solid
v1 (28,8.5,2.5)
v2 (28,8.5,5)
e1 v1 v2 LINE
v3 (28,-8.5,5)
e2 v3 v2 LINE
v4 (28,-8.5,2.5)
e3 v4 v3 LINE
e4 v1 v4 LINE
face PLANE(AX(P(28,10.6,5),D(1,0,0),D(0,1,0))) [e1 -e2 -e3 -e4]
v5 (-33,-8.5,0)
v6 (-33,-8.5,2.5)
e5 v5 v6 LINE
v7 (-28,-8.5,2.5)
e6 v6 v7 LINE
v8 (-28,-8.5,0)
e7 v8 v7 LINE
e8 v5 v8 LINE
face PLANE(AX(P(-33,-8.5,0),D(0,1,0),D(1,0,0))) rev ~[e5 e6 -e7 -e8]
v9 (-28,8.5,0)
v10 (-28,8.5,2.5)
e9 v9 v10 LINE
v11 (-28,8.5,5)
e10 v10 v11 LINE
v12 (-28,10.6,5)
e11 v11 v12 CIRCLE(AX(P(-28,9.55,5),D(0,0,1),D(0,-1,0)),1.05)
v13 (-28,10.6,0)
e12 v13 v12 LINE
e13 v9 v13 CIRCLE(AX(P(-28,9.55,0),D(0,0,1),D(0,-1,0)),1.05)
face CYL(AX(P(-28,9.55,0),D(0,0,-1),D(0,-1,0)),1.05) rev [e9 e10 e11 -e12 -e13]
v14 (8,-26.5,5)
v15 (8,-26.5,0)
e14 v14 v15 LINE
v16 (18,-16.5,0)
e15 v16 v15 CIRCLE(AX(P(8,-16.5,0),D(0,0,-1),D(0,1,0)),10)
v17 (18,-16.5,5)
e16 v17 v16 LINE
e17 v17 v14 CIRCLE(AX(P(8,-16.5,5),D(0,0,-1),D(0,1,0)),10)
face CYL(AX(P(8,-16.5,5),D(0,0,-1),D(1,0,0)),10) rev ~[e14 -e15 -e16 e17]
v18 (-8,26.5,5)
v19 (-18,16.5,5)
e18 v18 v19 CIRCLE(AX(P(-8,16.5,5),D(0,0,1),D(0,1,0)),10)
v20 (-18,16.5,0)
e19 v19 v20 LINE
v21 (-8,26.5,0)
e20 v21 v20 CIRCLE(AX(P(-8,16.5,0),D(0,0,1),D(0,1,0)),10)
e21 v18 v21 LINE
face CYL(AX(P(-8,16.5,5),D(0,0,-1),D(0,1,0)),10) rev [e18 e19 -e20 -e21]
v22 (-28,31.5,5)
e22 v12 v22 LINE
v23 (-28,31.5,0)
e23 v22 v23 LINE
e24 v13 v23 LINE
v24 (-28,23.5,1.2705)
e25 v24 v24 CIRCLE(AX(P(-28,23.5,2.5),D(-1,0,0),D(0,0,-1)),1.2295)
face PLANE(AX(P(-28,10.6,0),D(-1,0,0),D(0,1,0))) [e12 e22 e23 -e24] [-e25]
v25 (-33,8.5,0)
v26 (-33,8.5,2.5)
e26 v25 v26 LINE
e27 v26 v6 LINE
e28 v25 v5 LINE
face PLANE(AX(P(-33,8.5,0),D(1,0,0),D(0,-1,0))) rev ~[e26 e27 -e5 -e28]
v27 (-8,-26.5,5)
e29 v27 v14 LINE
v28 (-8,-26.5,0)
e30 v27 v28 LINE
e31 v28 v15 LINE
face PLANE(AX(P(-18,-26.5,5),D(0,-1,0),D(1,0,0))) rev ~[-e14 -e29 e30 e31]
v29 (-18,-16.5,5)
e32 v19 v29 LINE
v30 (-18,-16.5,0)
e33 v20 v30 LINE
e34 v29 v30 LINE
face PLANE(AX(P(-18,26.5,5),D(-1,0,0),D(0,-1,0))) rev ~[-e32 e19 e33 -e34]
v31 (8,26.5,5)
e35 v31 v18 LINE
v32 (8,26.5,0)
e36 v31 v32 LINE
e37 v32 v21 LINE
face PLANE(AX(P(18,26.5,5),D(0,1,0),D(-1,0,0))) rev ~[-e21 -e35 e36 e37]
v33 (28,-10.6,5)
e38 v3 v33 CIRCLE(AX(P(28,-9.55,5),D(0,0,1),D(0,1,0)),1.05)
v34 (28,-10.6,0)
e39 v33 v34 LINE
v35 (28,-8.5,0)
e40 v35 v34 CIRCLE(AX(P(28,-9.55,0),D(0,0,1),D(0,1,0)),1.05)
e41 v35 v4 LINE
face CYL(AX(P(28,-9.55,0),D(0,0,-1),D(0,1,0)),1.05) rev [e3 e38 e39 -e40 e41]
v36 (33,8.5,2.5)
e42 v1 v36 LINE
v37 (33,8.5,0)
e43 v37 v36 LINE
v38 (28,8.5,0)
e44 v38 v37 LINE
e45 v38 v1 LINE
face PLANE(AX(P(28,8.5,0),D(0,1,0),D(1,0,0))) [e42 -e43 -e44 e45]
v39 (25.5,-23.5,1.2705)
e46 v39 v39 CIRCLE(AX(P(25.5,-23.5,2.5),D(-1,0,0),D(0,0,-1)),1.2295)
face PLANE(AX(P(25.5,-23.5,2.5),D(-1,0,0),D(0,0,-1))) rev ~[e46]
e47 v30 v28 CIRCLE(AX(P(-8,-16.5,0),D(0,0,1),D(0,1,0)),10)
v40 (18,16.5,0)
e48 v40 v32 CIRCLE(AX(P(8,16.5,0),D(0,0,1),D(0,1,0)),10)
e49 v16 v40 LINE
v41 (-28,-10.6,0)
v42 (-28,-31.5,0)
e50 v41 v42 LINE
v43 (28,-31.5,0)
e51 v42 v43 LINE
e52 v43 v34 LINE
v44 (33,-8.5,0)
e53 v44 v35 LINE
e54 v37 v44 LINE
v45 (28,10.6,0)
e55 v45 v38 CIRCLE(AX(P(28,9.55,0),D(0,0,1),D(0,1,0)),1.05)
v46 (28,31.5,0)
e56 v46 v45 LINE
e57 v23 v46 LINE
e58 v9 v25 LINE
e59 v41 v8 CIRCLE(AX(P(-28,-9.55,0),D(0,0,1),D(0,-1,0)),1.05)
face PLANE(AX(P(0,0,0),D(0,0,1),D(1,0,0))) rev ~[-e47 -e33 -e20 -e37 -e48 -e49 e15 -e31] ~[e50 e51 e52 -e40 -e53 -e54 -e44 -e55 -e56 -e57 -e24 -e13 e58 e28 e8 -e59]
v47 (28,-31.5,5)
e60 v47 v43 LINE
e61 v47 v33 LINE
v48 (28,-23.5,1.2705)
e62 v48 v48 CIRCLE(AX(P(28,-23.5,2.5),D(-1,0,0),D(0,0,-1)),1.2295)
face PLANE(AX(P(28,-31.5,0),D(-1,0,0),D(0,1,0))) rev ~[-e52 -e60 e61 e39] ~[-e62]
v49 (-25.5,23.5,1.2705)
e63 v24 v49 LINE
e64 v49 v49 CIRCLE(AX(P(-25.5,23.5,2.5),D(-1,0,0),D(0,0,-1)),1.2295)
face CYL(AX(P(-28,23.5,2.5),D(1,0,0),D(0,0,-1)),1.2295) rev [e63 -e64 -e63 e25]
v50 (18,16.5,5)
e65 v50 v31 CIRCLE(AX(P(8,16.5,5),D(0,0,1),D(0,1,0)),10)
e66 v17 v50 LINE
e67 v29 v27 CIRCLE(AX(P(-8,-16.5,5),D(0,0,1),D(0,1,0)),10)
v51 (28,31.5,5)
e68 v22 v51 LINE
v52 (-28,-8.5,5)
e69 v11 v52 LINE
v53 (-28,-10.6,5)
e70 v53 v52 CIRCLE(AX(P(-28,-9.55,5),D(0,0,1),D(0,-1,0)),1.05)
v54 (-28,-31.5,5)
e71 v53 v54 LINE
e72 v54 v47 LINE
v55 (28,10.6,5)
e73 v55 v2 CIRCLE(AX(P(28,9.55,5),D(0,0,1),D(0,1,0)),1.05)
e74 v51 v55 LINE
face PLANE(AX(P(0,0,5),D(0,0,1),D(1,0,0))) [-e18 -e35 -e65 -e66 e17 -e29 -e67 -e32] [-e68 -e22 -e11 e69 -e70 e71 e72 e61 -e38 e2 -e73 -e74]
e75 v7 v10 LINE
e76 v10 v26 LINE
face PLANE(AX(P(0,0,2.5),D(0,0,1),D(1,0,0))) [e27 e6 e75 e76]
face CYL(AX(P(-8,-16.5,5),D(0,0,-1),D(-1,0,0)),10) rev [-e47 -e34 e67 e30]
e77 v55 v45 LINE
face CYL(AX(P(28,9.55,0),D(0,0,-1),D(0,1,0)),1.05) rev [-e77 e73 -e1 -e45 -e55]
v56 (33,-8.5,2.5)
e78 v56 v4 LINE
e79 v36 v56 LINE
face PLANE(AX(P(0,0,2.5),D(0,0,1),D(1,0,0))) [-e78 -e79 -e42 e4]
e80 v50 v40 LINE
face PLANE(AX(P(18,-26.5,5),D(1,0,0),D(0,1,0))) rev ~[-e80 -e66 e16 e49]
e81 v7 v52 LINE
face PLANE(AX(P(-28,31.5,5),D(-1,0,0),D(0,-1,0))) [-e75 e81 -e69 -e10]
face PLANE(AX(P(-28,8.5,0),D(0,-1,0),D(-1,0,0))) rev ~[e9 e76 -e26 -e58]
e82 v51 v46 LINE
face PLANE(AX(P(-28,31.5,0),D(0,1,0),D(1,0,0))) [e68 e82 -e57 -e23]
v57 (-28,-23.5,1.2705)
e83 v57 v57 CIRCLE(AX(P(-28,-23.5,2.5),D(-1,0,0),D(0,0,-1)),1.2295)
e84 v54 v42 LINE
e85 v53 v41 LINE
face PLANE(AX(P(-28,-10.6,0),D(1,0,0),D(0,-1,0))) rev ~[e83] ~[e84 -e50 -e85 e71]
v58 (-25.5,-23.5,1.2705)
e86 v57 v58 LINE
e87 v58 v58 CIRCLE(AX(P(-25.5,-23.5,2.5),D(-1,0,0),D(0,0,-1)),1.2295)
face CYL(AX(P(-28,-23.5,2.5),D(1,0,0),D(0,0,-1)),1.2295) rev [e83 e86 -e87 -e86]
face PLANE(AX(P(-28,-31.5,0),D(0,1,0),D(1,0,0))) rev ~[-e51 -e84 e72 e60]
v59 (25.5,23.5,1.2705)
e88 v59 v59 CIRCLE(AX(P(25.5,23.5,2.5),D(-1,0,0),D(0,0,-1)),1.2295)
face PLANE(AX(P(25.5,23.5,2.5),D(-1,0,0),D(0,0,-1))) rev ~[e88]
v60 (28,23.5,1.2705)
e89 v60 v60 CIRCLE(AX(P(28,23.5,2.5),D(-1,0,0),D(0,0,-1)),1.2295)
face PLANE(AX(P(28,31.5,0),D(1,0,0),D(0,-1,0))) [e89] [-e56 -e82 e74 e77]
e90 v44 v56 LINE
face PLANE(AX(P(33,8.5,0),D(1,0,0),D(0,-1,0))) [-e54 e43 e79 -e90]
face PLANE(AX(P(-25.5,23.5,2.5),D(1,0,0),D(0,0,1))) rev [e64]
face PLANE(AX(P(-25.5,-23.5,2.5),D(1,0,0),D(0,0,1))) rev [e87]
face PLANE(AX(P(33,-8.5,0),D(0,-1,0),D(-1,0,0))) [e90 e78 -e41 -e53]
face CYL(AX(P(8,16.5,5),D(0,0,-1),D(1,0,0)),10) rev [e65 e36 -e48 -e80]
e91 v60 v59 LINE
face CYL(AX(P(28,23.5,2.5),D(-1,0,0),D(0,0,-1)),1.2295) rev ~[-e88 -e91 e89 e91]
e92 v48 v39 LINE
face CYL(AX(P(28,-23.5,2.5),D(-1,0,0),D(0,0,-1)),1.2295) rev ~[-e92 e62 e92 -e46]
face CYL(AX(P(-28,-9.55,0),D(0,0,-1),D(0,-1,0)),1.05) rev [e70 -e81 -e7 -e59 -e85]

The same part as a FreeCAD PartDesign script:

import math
import FreeCAD as App
import Part
import Sketcher
from FreeCAD import Vector


def edges_at(feature, points):
    """Names of the edges that pass closest to the given points."""
    edges = feature.Shape.Edges
    near = lambda p: min(range(len(edges)), key=lambda i: edges[i].distToShape(Part.Vertex(*p))[0])
    return sorted({f"Edge{near(p) + 1}" for p in points})

doc = App.newDocument("Part")
body = doc.addObject("PartDesign::Body", "Body")

# Sketch on XY plane
sketch1 = body.newObject("Sketcher::SketchObject", "Sketch")
sketch1.AttachmentSupport = (doc.getObject("XY_Plane"), [""])
sketch1.MapMode = "FlatFace"
sketch1.addGeometry(Part.LineSegment(Vector(-28, 31.5, 0), Vector(-28, 10.6, 0)), False)
sketch1.addGeometry(Part.ArcOfCircle(Part.Circle(Vector(-28, 9.55, 0), Vector(0, 0, 1), 1.05), math.radians(-90), math.radians(90)), False)
sketch1.addGeometry(Part.LineSegment(Vector(-28, 8.5, 0), Vector(-33, 8.5, 0)), False)
sketch1.addGeometry(Part.LineSegment(Vector(-33, 8.5, 0), Vector(-33, -8.5, 0)), False)
sketch1.addGeometry(Part.LineSegment(Vector(-33, -8.5, 0), Vector(-28, -8.5, 0)), False)
sketch1.addGeometry(Part.ArcOfCircle(Part.Circle(Vector(-28, -9.55, 0), Vector(0, 0, 1), 1.05), math.radians(-90), math.radians(90)), False)
sketch1.addGeometry(Part.LineSegment(Vector(-28, -10.6, 0), Vector(-28, -31.5, 0)), False)
sketch1.addGeometry(Part.LineSegment(Vector(-28, -31.5, 0), Vector(28, -31.5, 0)), False)
sketch1.addGeometry(Part.LineSegment(Vector(28, -31.5, 0), Vector(28, -10.6, 0)), False)
sketch1.addGeometry(Part.ArcOfCircle(Part.Circle(Vector(28, -9.55, 0), Vector(0, 0, 1), 1.05), math.radians(90), math.radians(270)), False)
sketch1.addGeometry(Part.LineSegment(Vector(28, -8.5, 0), Vector(33, -8.5, 0)), False)
sketch1.addGeometry(Part.LineSegment(Vector(33, -8.5, 0), Vector(33, 8.5, 0)), False)
sketch1.addGeometry(Part.LineSegment(Vector(33, 8.5, 0), Vector(28, 8.5, 0)), False)
sketch1.addGeometry(Part.ArcOfCircle(Part.Circle(Vector(28, 9.55, 0), Vector(0, 0, 1), 1.05), math.radians(90), math.radians(270)), False)
sketch1.addGeometry(Part.LineSegment(Vector(28, 10.6, 0), Vector(28, 31.5, 0)), False)
sketch1.addGeometry(Part.LineSegment(Vector(28, 31.5, 0), Vector(-28, 31.5, 0)), False)
sketch1.addConstraint(Sketcher.Constraint("Coincident", 0, 2, 1, 2))
sketch1.addConstraint(Sketcher.Constraint("Tangent", 1, 1, 2, 1))
sketch1.addConstraint(Sketcher.Constraint("Coincident", 2, 2, 3, 1))
sketch1.addConstraint(Sketcher.Constraint("Coincident", 3, 2, 4, 1))
sketch1.addConstraint(Sketcher.Constraint("Tangent", 4, 2, 5, 2))
sketch1.addConstraint(Sketcher.Constraint("Coincident", 5, 1, 6, 1))
sketch1.addConstraint(Sketcher.Constraint("Coincident", 6, 2, 7, 1))
sketch1.addConstraint(Sketcher.Constraint("Coincident", 7, 2, 8, 1))
sketch1.addConstraint(Sketcher.Constraint("Coincident", 8, 2, 9, 2))
sketch1.addConstraint(Sketcher.Constraint("Tangent", 9, 1, 10, 1))
sketch1.addConstraint(Sketcher.Constraint("Coincident", 10, 2, 11, 1))
sketch1.addConstraint(Sketcher.Constraint("Coincident", 11, 2, 12, 1))
sketch1.addConstraint(Sketcher.Constraint("Tangent", 12, 2, 13, 2))
sketch1.addConstraint(Sketcher.Constraint("Coincident", 13, 1, 14, 1))
sketch1.addConstraint(Sketcher.Constraint("Coincident", 14, 2, 15, 1))
sketch1.addConstraint(Sketcher.Constraint("Coincident", 15, 2, 0, 1))
sketch1.addConstraint(Sketcher.Constraint("Vertical", 0))
sketch1.addConstraint(Sketcher.Constraint("Horizontal", 2))
sketch1.addConstraint(Sketcher.Constraint("Vertical", 3))
sketch1.addConstraint(Sketcher.Constraint("Horizontal", 4))
sketch1.addConstraint(Sketcher.Constraint("Vertical", 6))
sketch1.addConstraint(Sketcher.Constraint("Horizontal", 7))
sketch1.addConstraint(Sketcher.Constraint("Vertical", 8))
sketch1.addConstraint(Sketcher.Constraint("Horizontal", 10))
sketch1.addConstraint(Sketcher.Constraint("Vertical", 11))
sketch1.addConstraint(Sketcher.Constraint("Horizontal", 12))
sketch1.addConstraint(Sketcher.Constraint("Vertical", 14))
sketch1.addConstraint(Sketcher.Constraint("Horizontal", 15))
sketch1.addConstraint(Sketcher.Constraint("Equal", 1, 5))
sketch1.addConstraint(Sketcher.Constraint("Equal", 5, 9))
sketch1.addConstraint(Sketcher.Constraint("Equal", 9, 13))
sketch1.addConstraint(Sketcher.Constraint("Symmetric", 1, 3, 9, 3, -1, 1))
sketch1.addConstraint(Sketcher.Constraint("Symmetric", 5, 3, 13, 3, -1, 1))
sketch1.addConstraint(Sketcher.Constraint("Symmetric", 6, 2, 14, 2, -1, 1))
sketch1.addConstraint(Sketcher.Constraint("Symmetric", 5, 3, 9, 3, -2))
sketch1.addConstraint(Sketcher.Constraint("Vertical", 5, 3, 0, 2))
sketch1.addConstraint(Sketcher.Constraint("Vertical", 4, 2, 5, 1))
sketch1.addConstraint(Sketcher.Constraint("Vertical", 13, 3, 7, 2))
sketch1.addConstraint(Sketcher.Constraint("Equal", 4, 10))
sketch1.addConstraint(Sketcher.Constraint("DistanceX", 2, 2, 2, 1, 5.0))
sketch1.addConstraint(Sketcher.Constraint("DistanceX", 7, 1, 7, 2, 56.0))
sketch1.addConstraint(Sketcher.Constraint("Radius", 1, 1.05))
sketch1.addConstraint(Sketcher.Constraint("DistanceY", 6, 2, 4, 2, 23.0))
sketch1.addConstraint(Sketcher.Constraint("DistanceY", 3, 2, 3, 1, 17.0))
pad1 = body.newObject("PartDesign::Pad", "Pad")
pad1.Profile = sketch1
pad1.Length = 5

# Sketch on XY plane
sketch2 = body.newObject("Sketcher::SketchObject", "Sketch001")
sketch2.AttachmentSupport = (doc.getObject("XY_Plane"), [""])
sketch2.MapMode = "FlatFace"
sketch2.AttachmentOffset = App.Placement(Vector(0, 0, 5), App.Rotation())
sketch2.addGeometry(Part.LineSegment(Vector(-28, -57.37, 0), Vector(-28, 57.5344, 0)), False)
sketch2.addGeometry(Part.LineSegment(Vector(-28, 57.5344, 0), Vector(-50.9845, 57.5344, 0)), False)
sketch2.addGeometry(Part.LineSegment(Vector(-50.9845, 57.5344, 0), Vector(-50.9845, -57.37, 0)), False)
sketch2.addGeometry(Part.LineSegment(Vector(-50.9845, -57.37, 0), Vector(-28, -57.37, 0)), False)
sketch2.addGeometry(Part.LineSegment(Vector(28, 64.7229, 0), Vector(28, -57.37, 0)), False)
sketch2.addGeometry(Part.LineSegment(Vector(28, -57.37, 0), Vector(65.0267, -57.37, 0)), False)
sketch2.addGeometry(Part.LineSegment(Vector(65.0267, -57.37, 0), Vector(65.0267, 64.7229, 0)), False)
sketch2.addGeometry(Part.LineSegment(Vector(65.0267, 64.7229, 0), Vector(28, 64.7229, 0)), False)
sketch2.addConstraint(Sketcher.Constraint("Coincident", 0, 2, 1, 1))
sketch2.addConstraint(Sketcher.Constraint("Coincident", 1, 2, 2, 1))
sketch2.addConstraint(Sketcher.Constraint("Coincident", 2, 2, 3, 1))
sketch2.addConstraint(Sketcher.Constraint("Coincident", 3, 2, 0, 1))
sketch2.addConstraint(Sketcher.Constraint("Coincident", 4, 2, 5, 1))
sketch2.addConstraint(Sketcher.Constraint("Coincident", 5, 2, 6, 1))
sketch2.addConstraint(Sketcher.Constraint("Coincident", 6, 2, 7, 1))
sketch2.addConstraint(Sketcher.Constraint("Coincident", 7, 2, 4, 1))
sketch2.addConstraint(Sketcher.Constraint("Vertical", 0))
sketch2.addConstraint(Sketcher.Constraint("Horizontal", 1))
sketch2.addConstraint(Sketcher.Constraint("Vertical", 2))
sketch2.addConstraint(Sketcher.Constraint("Horizontal", 3))
sketch2.addConstraint(Sketcher.Constraint("Vertical", 4))
sketch2.addConstraint(Sketcher.Constraint("Horizontal", 5))
sketch2.addConstraint(Sketcher.Constraint("Vertical", 6))
sketch2.addConstraint(Sketcher.Constraint("Horizontal", 7))
sketch2.addConstraint(Sketcher.Constraint("Symmetric", 3, 2, 4, 2, -2))
sketch2.addConstraint(Sketcher.Constraint("DistanceX", 0, 2, -1, 1, 28.0))
sketch2.addConstraint(Sketcher.Constraint("DistanceY", 4, 2, 4, 1, 122.093))
sketch2.addConstraint(Sketcher.Constraint("DistanceY", 2, 2, -1, 1, 57.37))
sketch2.addConstraint(Sketcher.Constraint("DistanceX", 1, 2, 1, 1, 22.9845))
sketch2.addConstraint(Sketcher.Constraint("DistanceX", 5, 1, 5, 2, 37.0267))
sketch2.addConstraint(Sketcher.Constraint("DistanceY", 0, 1, 0, 2, 114.9044))
pocket1 = body.newObject("PartDesign::Pocket", "Pocket")
pocket1.Profile = sketch2
pocket1.Length = 2.5

# Sketch on YZ plane
sketch3 = body.newObject("Sketcher::SketchObject", "Sketch002")
sketch3.AttachmentSupport = (doc.getObject("YZ_Plane"), [""])
sketch3.MapMode = "FlatFace"
sketch3.AttachmentOffset = App.Placement(Vector(0, 0, 28), App.Rotation())
sketch3.addGeometry(Part.Circle(Vector(-23.5, 2.5, 0), Vector(0, 0, 1), 1.2295), False)
sketch3.addGeometry(Part.Circle(Vector(23.5, 2.5, 0), Vector(0, 0, 1), 1.2295), False)
sketch3.addConstraint(Sketcher.Constraint("Equal", 0, 1))
sketch3.addConstraint(Sketcher.Constraint("Symmetric", 0, 3, 1, 3, -2))
sketch3.addConstraint(Sketcher.Constraint("Diameter", 0, 2.459))
sketch3.addConstraint(Sketcher.Constraint("DistanceX", 0, 3, 1, 3, 47.0))
sketch3.addConstraint(Sketcher.Constraint("DistanceY", -1, 1, 0, 3, 2.5))
doc.recompute()
hole = body.newObject("PartDesign::Hole", "Hole")
hole.Profile = sketch3
hole.ThreadType = "None"
hole.Diameter = 2.459
hole.DepthType = "Dimension"
hole.Depth = 2.5
hole.DrillPoint = "Flat"
doc.recompute()

mirrored = body.newObject("PartDesign::Mirrored", "Mirrored")
mirrored.Originals = [hole]
mirrored.MirrorPlane = (doc.getObject("YZ_Plane"), [""])
body.Tip = mirrored

# Sketch on XY plane
sketch4 = body.newObject("Sketcher::SketchObject", "Sketch003")
sketch4.AttachmentSupport = (doc.getObject("XY_Plane"), [""])
sketch4.MapMode = "FlatFace"
sketch4.AttachmentOffset = App.Placement(Vector(0, 0, 5), App.Rotation())
sketch4.addGeometry(Part.LineSegment(Vector(18, -26.5, 0), Vector(18, 26.5, 0)), False)
sketch4.addGeometry(Part.LineSegment(Vector(18, 26.5, 0), Vector(-18, 26.5, 0)), False)
sketch4.addGeometry(Part.LineSegment(Vector(-18, 26.5, 0), Vector(-18, -26.5, 0)), False)
sketch4.addGeometry(Part.LineSegment(Vector(-18, -26.5, 0), Vector(18, -26.5, 0)), False)
sketch4.addConstraint(Sketcher.Constraint("Coincident", 0, 2, 1, 1))
sketch4.addConstraint(Sketcher.Constraint("Coincident", 1, 2, 2, 1))
sketch4.addConstraint(Sketcher.Constraint("Coincident", 2, 2, 3, 1))
sketch4.addConstraint(Sketcher.Constraint("Coincident", 3, 2, 0, 1))
sketch4.addConstraint(Sketcher.Constraint("Vertical", 0))
sketch4.addConstraint(Sketcher.Constraint("Horizontal", 1))
sketch4.addConstraint(Sketcher.Constraint("Vertical", 2))
sketch4.addConstraint(Sketcher.Constraint("Horizontal", 3))
sketch4.addConstraint(Sketcher.Constraint("Symmetric", 0, 2, 2, 2, -1, 1))
sketch4.addConstraint(Sketcher.Constraint("DistanceX", 1, 2, 1, 1, 36.0))
sketch4.addConstraint(Sketcher.Constraint("DistanceY", 0, 1, 0, 2, 53.0))
pocket2 = body.newObject("PartDesign::Pocket", "Pocket001")
pocket2.Profile = sketch4
pocket2.Length = 10
doc.recompute()

fillet = body.newObject("PartDesign::Fillet", "Fillet")
fillet.Base = (pocket2, edges_at(pocket2, [
    (18, -26.5, 2.5),
    (-18, -26.5, 2.5),
    (-18, 26.5, 2.5),
    (18, 26.5, 2.5),
]))
fillet.Radius = 10

doc.recompute()
